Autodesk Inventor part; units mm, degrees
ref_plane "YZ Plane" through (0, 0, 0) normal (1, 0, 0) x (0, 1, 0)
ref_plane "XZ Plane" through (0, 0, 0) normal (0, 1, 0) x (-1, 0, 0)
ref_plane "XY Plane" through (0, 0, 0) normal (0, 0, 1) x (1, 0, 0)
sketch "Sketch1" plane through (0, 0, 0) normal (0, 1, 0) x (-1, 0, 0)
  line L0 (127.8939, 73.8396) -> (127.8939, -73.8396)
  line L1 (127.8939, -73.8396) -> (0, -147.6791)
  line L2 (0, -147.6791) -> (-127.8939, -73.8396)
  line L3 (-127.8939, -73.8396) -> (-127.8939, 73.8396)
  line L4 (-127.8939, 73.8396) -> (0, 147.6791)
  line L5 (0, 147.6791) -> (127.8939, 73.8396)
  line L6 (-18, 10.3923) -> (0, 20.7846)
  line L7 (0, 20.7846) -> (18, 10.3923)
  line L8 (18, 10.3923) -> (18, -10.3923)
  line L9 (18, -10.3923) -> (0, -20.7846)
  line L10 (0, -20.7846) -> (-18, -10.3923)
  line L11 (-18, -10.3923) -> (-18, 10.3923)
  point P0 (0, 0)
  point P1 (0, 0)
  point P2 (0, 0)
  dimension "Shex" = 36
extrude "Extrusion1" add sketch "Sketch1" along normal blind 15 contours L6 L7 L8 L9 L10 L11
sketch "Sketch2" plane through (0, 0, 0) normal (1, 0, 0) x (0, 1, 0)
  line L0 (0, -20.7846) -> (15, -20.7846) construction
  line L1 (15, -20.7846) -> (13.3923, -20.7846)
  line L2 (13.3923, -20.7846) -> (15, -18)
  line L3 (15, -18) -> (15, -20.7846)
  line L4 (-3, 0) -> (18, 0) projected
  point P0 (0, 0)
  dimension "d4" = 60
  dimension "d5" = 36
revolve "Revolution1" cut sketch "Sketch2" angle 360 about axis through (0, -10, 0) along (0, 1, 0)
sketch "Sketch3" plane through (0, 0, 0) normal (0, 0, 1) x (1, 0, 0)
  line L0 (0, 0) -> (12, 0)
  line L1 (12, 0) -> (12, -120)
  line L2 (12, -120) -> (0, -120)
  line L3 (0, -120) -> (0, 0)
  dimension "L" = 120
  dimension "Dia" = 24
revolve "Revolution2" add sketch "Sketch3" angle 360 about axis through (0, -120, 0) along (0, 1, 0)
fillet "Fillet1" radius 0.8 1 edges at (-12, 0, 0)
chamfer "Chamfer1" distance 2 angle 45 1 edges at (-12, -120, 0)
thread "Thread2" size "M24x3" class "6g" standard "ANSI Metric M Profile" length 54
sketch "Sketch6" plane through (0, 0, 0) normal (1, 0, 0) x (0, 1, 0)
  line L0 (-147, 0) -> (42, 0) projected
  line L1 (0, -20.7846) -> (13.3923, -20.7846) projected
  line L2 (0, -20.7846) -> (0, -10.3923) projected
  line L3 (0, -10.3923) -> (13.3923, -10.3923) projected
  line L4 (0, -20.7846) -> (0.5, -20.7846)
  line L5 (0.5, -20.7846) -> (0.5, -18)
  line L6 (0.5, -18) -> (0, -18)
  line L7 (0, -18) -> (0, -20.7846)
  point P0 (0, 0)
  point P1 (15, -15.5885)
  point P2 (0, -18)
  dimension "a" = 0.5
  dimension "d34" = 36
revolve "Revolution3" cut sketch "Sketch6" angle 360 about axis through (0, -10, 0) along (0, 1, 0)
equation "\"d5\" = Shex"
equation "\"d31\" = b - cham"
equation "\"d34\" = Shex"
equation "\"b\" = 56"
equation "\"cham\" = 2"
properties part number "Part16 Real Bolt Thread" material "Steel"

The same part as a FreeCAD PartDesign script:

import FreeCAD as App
import Part
import Sketcher
Q = App.Units.Quantity


def edges_at(feature, points):
    """Names of the edges that pass closest to the given points."""
    edges = feature.Shape.Edges
    near = lambda p: min(range(len(edges)), key=lambda i: edges[i].distToShape(Part.Vertex(*p))[0])
    return sorted({f"Edge{near(p) + 1}" for p in points})


def add_polygon(sketch, points):
    """Adds a closed chain of lines whose ends are joined by coincident constraints."""
    first, n = sketch.GeometryCount, len(points)
    for a, b in zip(points, points[1:] + points[:1]):
        sketch.addGeometry(Part.LineSegment(App.Vector(*a, 0), App.Vector(*b, 0)), False)
    for i in range(n):
        sketch.addConstraint(Sketcher.Constraint("Coincident", first + i, 2, first + (i + 1) % n, 1))

doc = App.newDocument("Part")
body = doc.addObject("PartDesign::Body", "Body")

# Sketch on XZ plane
sketch1 = body.newObject("Sketcher::SketchObject", "Sketch")
sketch1.AttachmentSupport = (doc.getObject("XZ_Plane"), [""])
sketch1.MapMode = "FlatFace"
add_polygon(sketch1, [(0, 21), (18, 10), (18, -10), (0, -21), (-18, -10), (-18, 10)])  # lines 0-5
sketch1.addConstraint(Sketcher.Constraint("Vertical", 1))
sketch1.addConstraint(Sketcher.Constraint("Vertical", 4))
sketch1.addConstraint(Sketcher.Constraint("Symmetric", 0, 2, 3, 2, -1, 1))
sketch1.addConstraint(Sketcher.Constraint("Symmetric", 2, 2, 5, 2, -1, 1))
sketch1.addConstraint(Sketcher.Constraint("PointOnObject", 2, 2, -2))
sketch1.addConstraint(Sketcher.Constraint("Parallel", 2, 5))
sketch1.addConstraint(Sketcher.Constraint("Horizontal", 1, 2, 3, 2))
sketch1.addConstraint(Sketcher.Constraint("DistanceX", 3, 2, 1, 2, 36.0))
sketch1.addConstraint(Sketcher.Constraint("Angle", 0, Q("-30 deg")))
sketch1.addConstraint(Sketcher.Constraint("DistanceY", 1, 2, 1, 1, 20.7846))
pad1 = body.newObject("PartDesign::Pad", "Pad")
pad1.Profile = sketch1
pad1.Length = 15
pad1.Reversed = True

# Sketch on YZ plane
sketch2 = body.newObject("Sketcher::SketchObject", "Sketch001")
sketch2.AttachmentSupport = (doc.getObject("YZ_Plane"), [""])
sketch2.MapMode = "FlatFace"
add_polygon(sketch2, [(13.4, -20.8), (15, -20.8), (15, -18)])  # lines 0-2
sketch2.addConstraint(Sketcher.Constraint("Horizontal", 0))
sketch2.addConstraint(Sketcher.Constraint("Vertical", 1))
sketch2.addConstraint(Sketcher.Constraint("Angle", 2, Q("-120.0002 deg")))
sketch2.addConstraint(Sketcher.Constraint("DistanceX", -1, 1, 0, 2, 15.0))
sketch2.addConstraint(Sketcher.Constraint("DistanceY", 1, 2, -1, 1, 18.0))
sketch2.addConstraint(Sketcher.Constraint("DistanceX", 0, 1, 0, 2, 1.6077))
groove = body.newObject("PartDesign::Groove", "Groove")
groove.Profile = sketch2
groove.ReferenceAxis = (sketch2, ["H_Axis"])
groove.Angle = 360

# Sketch on XY plane
sketch3 = body.newObject("Sketcher::SketchObject", "Sketch002")
sketch3.AttachmentSupport = (doc.getObject("XY_Plane"), [""])
sketch3.MapMode = "FlatFace"
add_polygon(sketch3, [(12, 0), (0, 0), (0, -120), (12, -120)])  # lines 0-3
sketch3.addConstraint(Sketcher.Constraint("Horizontal", 0))
sketch3.addConstraint(Sketcher.Constraint("Vertical", 1))
sketch3.addConstraint(Sketcher.Constraint("Horizontal", 2))
sketch3.addConstraint(Sketcher.Constraint("Vertical", 3))
sketch3.addConstraint(Sketcher.Constraint("Coincident", 0, 2, -1, 1))
sketch3.addConstraint(Sketcher.Constraint("DistanceY", 1, 2, 1, 1, 120.0))
sketch3.addConstraint(Sketcher.Constraint("DistanceX", 0, 2, 0, 1, 12.0))
revolution = body.newObject("PartDesign::Revolution", "Revolution")
revolution.Profile = sketch3
revolution.ReferenceAxis = (sketch3, ["V_Axis"])
revolution.Angle = 360
doc.recompute()

fillet = body.newObject("PartDesign::Fillet", "Fillet")
fillet.Base = (revolution, edges_at(revolution, [(-12, 0, 0)]))
fillet.Radius = 0.8
doc.recompute()

chamfer = body.newObject("PartDesign::Chamfer", "Chamfer")
chamfer.Base = (fillet, edges_at(fillet, [(-12, -120, 0)]))
chamfer.Size = 2

# Sketch on YZ plane
sketch4 = body.newObject("Sketcher::SketchObject", "Sketch003")
sketch4.AttachmentSupport = (doc.getObject("YZ_Plane"), [""])
sketch4.MapMode = "FlatFace"
add_polygon(sketch4, [(0, -18), (0, -20.8), (0.5, -20.8), (0.5, -18)])  # lines 0-3
sketch4.addConstraint(Sketcher.Constraint("Vertical", 0))
sketch4.addConstraint(Sketcher.Constraint("Horizontal", 1))
sketch4.addConstraint(Sketcher.Constraint("Vertical", 2))
sketch4.addConstraint(Sketcher.Constraint("Horizontal", 3))
sketch4.addConstraint(Sketcher.Constraint("PointOnObject", 0, 2, -2))
sketch4.addConstraint(Sketcher.Constraint("DistanceX", 1, 1, 1, 2, 0.5))
sketch4.addConstraint(Sketcher.Constraint("DistanceY", 2, 2, -1, 1, 18.0))
sketch4.addConstraint(Sketcher.Constraint("DistanceY", 0, 2, 0, 1, 2.7846))
groove2 = body.newObject("PartDesign::Groove", "Groove001")
groove2.Profile = sketch4
groove2.ReferenceAxis = (sketch4, ["H_Axis"])
groove2.Angle = 360

doc.recompute()
